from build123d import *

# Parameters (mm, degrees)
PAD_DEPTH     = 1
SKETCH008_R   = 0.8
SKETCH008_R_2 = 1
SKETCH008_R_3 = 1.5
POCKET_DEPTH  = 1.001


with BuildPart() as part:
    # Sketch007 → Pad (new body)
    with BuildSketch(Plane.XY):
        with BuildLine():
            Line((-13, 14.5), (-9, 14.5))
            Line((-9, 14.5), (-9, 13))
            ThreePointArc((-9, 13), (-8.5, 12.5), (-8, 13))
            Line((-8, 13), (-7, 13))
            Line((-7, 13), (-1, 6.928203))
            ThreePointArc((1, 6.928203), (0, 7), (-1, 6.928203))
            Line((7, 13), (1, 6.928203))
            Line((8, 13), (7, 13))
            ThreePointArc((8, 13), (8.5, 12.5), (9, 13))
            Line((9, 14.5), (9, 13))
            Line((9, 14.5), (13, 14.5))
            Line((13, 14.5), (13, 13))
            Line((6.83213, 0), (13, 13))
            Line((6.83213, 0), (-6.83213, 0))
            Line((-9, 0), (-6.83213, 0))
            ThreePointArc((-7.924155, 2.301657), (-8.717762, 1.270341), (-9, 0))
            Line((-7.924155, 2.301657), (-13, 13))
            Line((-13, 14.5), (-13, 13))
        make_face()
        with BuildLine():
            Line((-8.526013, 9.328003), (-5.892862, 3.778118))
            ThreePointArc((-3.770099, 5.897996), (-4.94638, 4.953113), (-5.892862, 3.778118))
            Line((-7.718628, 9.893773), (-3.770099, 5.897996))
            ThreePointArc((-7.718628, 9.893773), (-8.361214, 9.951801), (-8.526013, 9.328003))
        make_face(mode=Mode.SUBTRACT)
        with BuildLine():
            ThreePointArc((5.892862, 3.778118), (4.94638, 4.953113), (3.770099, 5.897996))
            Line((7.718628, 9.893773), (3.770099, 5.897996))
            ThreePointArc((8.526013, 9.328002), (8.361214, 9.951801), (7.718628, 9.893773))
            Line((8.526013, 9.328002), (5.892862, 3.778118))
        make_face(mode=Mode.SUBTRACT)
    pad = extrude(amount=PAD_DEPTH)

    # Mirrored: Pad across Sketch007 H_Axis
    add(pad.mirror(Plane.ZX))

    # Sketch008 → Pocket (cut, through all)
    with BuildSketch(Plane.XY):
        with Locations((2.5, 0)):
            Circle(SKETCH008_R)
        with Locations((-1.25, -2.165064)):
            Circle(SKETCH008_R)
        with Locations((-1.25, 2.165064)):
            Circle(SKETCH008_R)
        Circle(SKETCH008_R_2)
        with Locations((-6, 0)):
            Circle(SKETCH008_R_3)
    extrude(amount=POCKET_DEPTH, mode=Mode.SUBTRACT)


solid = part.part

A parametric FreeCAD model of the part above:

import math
import FreeCAD as App
import Part
import Sketcher
from FreeCAD import Vector
Q = App.Units.Quantity

doc = App.newDocument("Part")
body = doc.addObject("PartDesign::Body", "Body")

sketch1 = body.newObject("Sketcher::SketchObject", "Sketch")
sketch1.AttachmentSupport = (doc.getObject("XY_Plane"), [""])
sketch1.MapMode = "FlatFace"
sketch1.addGeometry(Part.LineSegment(Vector(-9, 14.5, 0), Vector(-13, 14.5, 0)), False)
sketch1.addGeometry(Part.LineSegment(Vector(-13, 14.5, 0), Vector(-13, 13, 0)), False)
sketch1.addGeometry(Part.LineSegment(Vector(-13, 13, 0), Vector(-7.9, 2.3, 0)), False)
sketch1.addGeometry(Part.ArcOfCircle(Part.Circle(Vector(-6, 0, 0), Vector(0, 0, 1), 3), math.radians(130), math.radians(180)), False)
sketch1.addGeometry(Part.LineSegment(Vector(-9, 0, 0), Vector(6.8, 0, 0)), False)
sketch1.addGeometry(Part.LineSegment(Vector(6.8, 0, 0), Vector(13, 13, 0)), False)
sketch1.addGeometry(Part.LineSegment(Vector(13, 13, 0), Vector(13, 14.5, 0)), False)
sketch1.addGeometry(Part.LineSegment(Vector(13, 14.5, 0), Vector(9, 14.5, 0)), False)
sketch1.addGeometry(Part.LineSegment(Vector(9, 14.5, 0), Vector(9, 13, 0)), False)
sketch1.addGeometry(Part.ArcOfCircle(Part.Circle(Vector(8.5, 13, 0), Vector(0, 0, 1), 0.5), math.radians(180), math.radians(360)), False)
sketch1.addGeometry(Part.LineSegment(Vector(8, 13, 0), Vector(7, 13, 0)), False)
sketch1.addGeometry(Part.LineSegment(Vector(7, 13, 0), Vector(1, 6.9, 0)), False)
sketch1.addGeometry(Part.ArcOfCircle(Part.Circle(Vector(0, 0, 0), Vector(0, 0, 1), 7), math.radians(81.79), math.radians(98.21)), False)
sketch1.addGeometry(Part.LineSegment(Vector(-1, 6.9, 0), Vector(-7, 13, 0)), False)
sketch1.addGeometry(Part.LineSegment(Vector(-7, 13, 0), Vector(-8, 13, 0)), False)
sketch1.addGeometry(Part.ArcOfCircle(Part.Circle(Vector(-8.5, 13, 0), Vector(0, 0, 1), 0.5), math.radians(180), math.radians(360)), False)
sketch1.addGeometry(Part.LineSegment(Vector(-9, 13, 0), Vector(-9, 14.5, 0)), False)
sketch1.addGeometry(Part.ArcOfCircle(Part.Circle(Vector(0, 0, 0), Vector(0, 0, 1), 7), math.radians(33), math.radians(57)), False)
sketch1.addGeometry(Part.LineSegment(Vector(3.8, 5.9, 0), Vector(7.7, 9.9, 0)), False)
sketch1.addGeometry(Part.ArcOfCircle(Part.Circle(Vector(8.1, 9.5, 0), Vector(0, 0, 1), 0.5), math.radians(-25), math.radians(135)), False)
sketch1.addGeometry(Part.LineSegment(Vector(8.5, 9.3, 0), Vector(5.9, 3.8, 0)), False)
sketch1.addGeometry(Part.ArcOfCircle(Part.Circle(Vector(-8.1, 9.5, 0), Vector(0, 0, 1), 0.5), math.radians(45), math.radians(205)), False)
sketch1.addGeometry(Part.LineSegment(Vector(-7.7, 9.9, 0), Vector(-3.8, 5.9, 0)), False)
sketch1.addGeometry(Part.ArcOfCircle(Part.Circle(Vector(0, 0, 0), Vector(0, 0, 1), 7), math.radians(123), math.radians(147)), False)
sketch1.addGeometry(Part.LineSegment(Vector(-5.9, 3.8, 0), Vector(-8.5, 9.3, 0)), False)
sketch1.addConstraint(Sketcher.Constraint("Coincident", 0, 2, 1, 1))
sketch1.addConstraint(Sketcher.Constraint("Coincident", 1, 2, 2, 1))
sketch1.addConstraint(Sketcher.Constraint("Coincident", 2, 2, 3, 1))
sketch1.addConstraint(Sketcher.Constraint("Coincident", 3, 2, 4, 1))
sketch1.addConstraint(Sketcher.Constraint("Coincident", 4, 2, 5, 1))
sketch1.addConstraint(Sketcher.Constraint("Coincident", 5, 2, 6, 1))
sketch1.addConstraint(Sketcher.Constraint("Coincident", 6, 2, 7, 1))
sketch1.addConstraint(Sketcher.Constraint("Coincident", 7, 2, 8, 1))
sketch1.addConstraint(Sketcher.Constraint("Tangent", 8, 2, 9, 2))
sketch1.addConstraint(Sketcher.Constraint("Coincident", 9, 1, 10, 1))
sketch1.addConstraint(Sketcher.Constraint("Coincident", 10, 2, 11, 1))
sketch1.addConstraint(Sketcher.Constraint("Coincident", 11, 2, 12, 1))
sketch1.addConstraint(Sketcher.Constraint("Coincident", 12, 2, 13, 1))
sketch1.addConstraint(Sketcher.Constraint("Coincident", 13, 2, 14, 1))
sketch1.addConstraint(Sketcher.Constraint("Coincident", 14, 2, 15, 2))
sketch1.addConstraint(Sketcher.Constraint("Tangent", 15, 1, 16, 1))
sketch1.addConstraint(Sketcher.Constraint("Coincident", 16, 2, 0, 1))
sketch1.addConstraint(Sketcher.Constraint("Coincident", 17, 2, 18, 1))
sketch1.addConstraint(Sketcher.Constraint("Tangent", 18, 2, 19, 2))
sketch1.addConstraint(Sketcher.Constraint("Tangent", 19, 1, 20, 1))
sketch1.addConstraint(Sketcher.Constraint("Coincident", 20, 2, 17, 1))
sketch1.addConstraint(Sketcher.Constraint("Tangent", 21, 1, 22, 1))
sketch1.addConstraint(Sketcher.Constraint("Coincident", 22, 2, 23, 1))
sketch1.addConstraint(Sketcher.Constraint("Coincident", 23, 2, 24, 1))
sketch1.addConstraint(Sketcher.Constraint("Tangent", 24, 2, 21, 2))
sketch1.addConstraint(Sketcher.Constraint("Horizontal", 0))
sketch1.addConstraint(Sketcher.Constraint("Vertical", 1))
sketch1.addConstraint(Sketcher.Constraint("Horizontal", 4))
sketch1.addConstraint(Sketcher.Constraint("Vertical", 6))
sketch1.addConstraint(Sketcher.Constraint("Horizontal", 7))
sketch1.addConstraint(Sketcher.Constraint("Vertical", 8))
sketch1.addConstraint(Sketcher.Constraint("Horizontal", 10))
sketch1.addConstraint(Sketcher.Constraint("Horizontal", 14))
sketch1.addConstraint(Sketcher.Constraint("Vertical", 16))
sketch1.addConstraint(Sketcher.Constraint("Coincident", 17, 3, -1, 1))
sketch1.addConstraint(Sketcher.Constraint("Coincident", 23, 3, -1, 1))
sketch1.addConstraint(Sketcher.Constraint("Equal", 9, 15))
sketch1.addConstraint(Sketcher.Constraint("Equal", 15, 19))
sketch1.addConstraint(Sketcher.Constraint("Equal", 19, 21))
sketch1.addConstraint(Sketcher.Constraint("Equal", 17, 23))
sketch1.addConstraint(Sketcher.Constraint("Symmetric", 9, 3, 15, 3, -2))
sketch1.addConstraint(Sketcher.Constraint("Symmetric", 19, 3, 21, 3, -2))
sketch1.addConstraint(Sketcher.Constraint("Symmetric", 1, 2, 5, 2, -2))
sketch1.addConstraint(Sketcher.Constraint("Symmetric", 11, 2, 12, 2, -2))
sketch1.addConstraint(Sketcher.Constraint("Symmetric", 10, 2, 13, 2, -2))
sketch1.addConstraint(Sketcher.Constraint("PointOnObject", 3, 2, -1))
sketch1.addConstraint(Sketcher.Constraint("Parallel", 11, 18))
sketch1.addConstraint(Sketcher.Constraint("Parallel", 5, 20))
sketch1.addConstraint(Sketcher.Constraint("Parallel", 13, 22))
sketch1.addConstraint(Sketcher.Constraint("Parallel", 2, 24))
sketch1.addConstraint(Sketcher.Constraint("Horizontal", 15, 3, 1, 2))
sketch1.addConstraint(Sketcher.Constraint("Horizontal", 0, 2, 6, 2))
sketch1.addConstraint(Sketcher.Constraint("Horizontal", 8, 2, 9, 1))
sketch1.addConstraint(Sketcher.Constraint("Horizontal", 20, 2, 23, 2))
sketch1.addConstraint(Sketcher.Constraint("Vertical", 3, 2, 15, 1))
sketch1.addConstraint(Sketcher.Constraint("Radius", 9, Q("0.5 mm")))
sketch1.addConstraint(Sketcher.Constraint("DistanceX", 0, 2, 0, 1, Q("4 mm")))
sketch1.addConstraint(Sketcher.Constraint("DistanceX", 10, 2, 10, 1, Q("1 mm")))
sketch1.addConstraint(Sketcher.Constraint("DistanceY", 1, 2, 1, 1, Q("1.5 mm")))
sketch1.addConstraint(Sketcher.Constraint("DistanceY", -1, 1, 9, 3, Q("13 mm")))
sketch1.addConstraint(Sketcher.Constraint("DistanceX", 0, 2, -1, 1, Q("13 mm")))
sketch1.addConstraint(Sketcher.Constraint("DistanceX", -1, 1, 11, 2, Q("1 mm")))
sketch1.addConstraint(Sketcher.Constraint("Radius", 17, Q("6.999992 mm")))
sketch1.addConstraint(Sketcher.Constraint("DistanceY", -1, 1, 19, 1, Q("9.328002 mm")))
sketch1.addConstraint(Sketcher.Constraint("Radius", 3, Q("3.000003 mm")))
sketch1.addConstraint(Sketcher.Constraint("Radius", 12, Q("6.999978 mm")))
sketch1.addConstraint(Sketcher.Constraint("Distance", 2, Q("11.8414 mm")))
sketch1.addConstraint(Sketcher.Constraint("Distance", 11, Q("8.5362 mm")))
sketch1.addConstraint(Sketcher.Constraint("DistanceX", 4, 1, 4, 2, Q("15.83213 mm")))
sketch1.addConstraint(Sketcher.Constraint("DistanceX", -1, 1, 17, 2, Q("3.770099 mm")))
pad1 = body.newObject("PartDesign::Pad", "Pad")
pad1.Profile = sketch1
pad1.Length = 1
doc.recompute()

mirrored = body.newObject("PartDesign::Mirrored", "Mirrored")
mirrored.Originals = [pad1]
mirrored.MirrorPlane = (doc.getObject("XZ_Plane"), [""])
body.Tip = mirrored

sketch2 = body.newObject("Sketcher::SketchObject", "Sketch001")
sketch2.AttachmentSupport = (doc.getObject("XY_Plane"), [""])
sketch2.MapMode = "FlatFace"
sketch2.addGeometry(Part.Circle(Vector(2.5, 0, 0), Vector(0, 0, 1), 0.8), False)
sketch2.addGeometry(Part.Circle(Vector(-1.2, -2.2, 0), Vector(0, 0, 1), 0.8), False)
sketch2.addGeometry(Part.Circle(Vector(-1.2, 2.2, 0), Vector(0, 0, 1), 0.8), False)
sketch2.addGeometry(Part.Circle(Vector(0, 0, 0), Vector(0, 0, 1), 1), False)
sketch2.addGeometry(Part.Circle(Vector(-6, 0, 0), Vector(0, 0, 1), 1.5), False)
sketch2.addConstraint(Sketcher.Constraint("Coincident", 3, 3, -1, 1))
sketch2.addConstraint(Sketcher.Constraint("Equal", 0, 1))
sketch2.addConstraint(Sketcher.Constraint("Equal", 1, 2))
sketch2.addConstraint(Sketcher.Constraint("Symmetric", 1, 3, 2, 3, -1))
sketch2.addConstraint(Sketcher.Constraint("PointOnObject", 0, 3, -1))
sketch2.addConstraint(Sketcher.Constraint("PointOnObject", 4, 3, -1))
sketch2.addConstraint(Sketcher.Constraint("Diameter", 3, Q("2 mm")))
sketch2.addConstraint(Sketcher.Constraint("Diameter", 4, Q("3 mm")))
sketch2.addConstraint(Sketcher.Constraint("Diameter", 0, Q("1.6 mm")))
sketch2.addConstraint(Sketcher.Constraint("DistanceX", 4, 3, -1, 1, Q("6 mm")))
sketch2.addConstraint(Sketcher.Constraint("DistanceX", -1, 1, 0, 3, Q("2.5 mm")))
sketch2.addConstraint(Sketcher.Constraint("DistanceX", 1, 3, -1, 1, Q("1.25 mm")))
sketch2.addConstraint(Sketcher.Constraint("DistanceY", 1, 3, 2, 3, Q("4.330128 mm")))
pocket1 = body.newObject("PartDesign::Pocket", "Pocket")
pocket1.Profile = sketch2
pocket1.Type = "ThroughAll"
pocket1.Reversed = True

doc.recompute()
